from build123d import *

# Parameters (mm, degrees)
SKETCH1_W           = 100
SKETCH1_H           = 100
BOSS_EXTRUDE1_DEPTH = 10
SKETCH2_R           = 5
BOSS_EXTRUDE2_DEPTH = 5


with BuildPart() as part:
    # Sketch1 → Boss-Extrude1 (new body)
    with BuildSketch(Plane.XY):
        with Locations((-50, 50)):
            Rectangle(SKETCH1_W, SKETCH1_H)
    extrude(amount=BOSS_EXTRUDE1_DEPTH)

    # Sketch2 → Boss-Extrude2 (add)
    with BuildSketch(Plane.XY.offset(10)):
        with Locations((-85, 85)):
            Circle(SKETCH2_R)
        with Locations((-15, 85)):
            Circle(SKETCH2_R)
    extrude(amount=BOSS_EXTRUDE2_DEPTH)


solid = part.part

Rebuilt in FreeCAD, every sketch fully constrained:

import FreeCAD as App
import Part
import Sketcher
from FreeCAD import Vector


def add_polygon(sketch, points):
    """Adds a closed chain of lines whose ends are joined by coincident constraints."""
    first, n = sketch.GeometryCount, len(points)
    for a, b in zip(points, points[1:] + points[:1]):
        sketch.addGeometry(Part.LineSegment(App.Vector(*a, 0), App.Vector(*b, 0)), False)
    for i in range(n):
        sketch.addConstraint(Sketcher.Constraint("Coincident", first + i, 2, first + (i + 1) % n, 1))

doc = App.newDocument("Part")
body = doc.addObject("PartDesign::Body", "Body")

# Sketch on XY plane
sketch1 = doc.addObject("Sketcher::SketchObject", "Sketch")
body.addObject(sketch1)
sketch1.AttachmentSupport = (doc.XY_Plane, [""])
sketch1.MapMode = "FlatFace"
add_polygon(sketch1, [(-100, 100), (-100, 0), (0, 0), (0, 100)])  # lines 0-3
sketch1.addConstraint([
    Sketcher.Constraint("Vertical", 0),
    Sketcher.Constraint("Horizontal", 1),
    Sketcher.Constraint("Vertical", 2),
    Sketcher.Constraint("Horizontal", 3),
    Sketcher.Constraint("Coincident", 1, 2, -1, 1),
    Sketcher.Constraint("Equal", 3, 0),
    Sketcher.Constraint("DistanceX", 1, 1, 1, 2, 100.0),
])
pad1 = doc.addObject("PartDesign::Pad", "Pad")
body.addObject(pad1)
pad1.Profile = sketch1
pad1.Length = 10

# Sketch on XY plane
sketch2 = doc.addObject("Sketcher::SketchObject", "Sketch001")
body.addObject(sketch2)
sketch2.AttachmentSupport = (doc.XY_Plane, [""])
sketch2.MapMode = "FlatFace"
sketch2.AttachmentOffset = App.Placement(Vector(0, 0, 10), App.Rotation())
sketch2.addGeometry([
    Part.Circle(Vector(-85, 85, 0), Vector(0, 0, 1), 5),
    Part.Circle(Vector(-15, 85, 0), Vector(0, 0, 1), 5),
], False)
sketch2.addConstraint([
    Sketcher.Constraint("Equal", 0, 1),
    Sketcher.Constraint("Horizontal", 0, 3, 1, 3),
    Sketcher.Constraint("Diameter", 0, 10.0),
    Sketcher.Constraint("DistanceX", 0, 3, -1, 1, 85.0),
    Sketcher.Constraint("DistanceY", -1, 1, 0, 3, 85.0),
    Sketcher.Constraint("DistanceX", 1, 3, -1, 1, 15.0),
])
pad2 = doc.addObject("PartDesign::Pad", "Pad001")
body.addObject(pad2)
pad2.Profile = sketch2
pad2.Length = 5

doc.recompute()
